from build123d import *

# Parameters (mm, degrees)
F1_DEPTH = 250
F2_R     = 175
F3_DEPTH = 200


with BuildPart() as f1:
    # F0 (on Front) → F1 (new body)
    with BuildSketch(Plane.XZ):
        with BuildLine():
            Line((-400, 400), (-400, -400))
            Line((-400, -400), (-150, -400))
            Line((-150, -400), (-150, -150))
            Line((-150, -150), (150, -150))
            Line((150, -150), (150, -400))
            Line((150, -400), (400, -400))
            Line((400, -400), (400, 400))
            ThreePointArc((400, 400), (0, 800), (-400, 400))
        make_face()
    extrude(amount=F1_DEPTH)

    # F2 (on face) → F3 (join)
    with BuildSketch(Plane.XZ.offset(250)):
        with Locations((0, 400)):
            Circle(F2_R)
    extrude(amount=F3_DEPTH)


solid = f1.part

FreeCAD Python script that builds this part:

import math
import FreeCAD as App
import Part
import Sketcher
from FreeCAD import Vector

doc = App.newDocument("Part")
params = doc.addObject("Spreadsheet::Sheet", "Params")
for row, (alias, value) in enumerate([
    ("sketch1_radius", "400 mm"),
    ("sketch1_width", "250 mm"),
    ("sketch1_height", "800 mm"),
    ("pad1_length", "250 mm"),
    ("sketch2_diameter", "350 mm"),
    ("pad2_length", "200 mm"),
], start=1):
    params.set(f"A{row}", alias)
    params.set(f"B{row}", "=" + value)
    params.setAlias(f"B{row}", alias)

body = doc.addObject("PartDesign::Body", "Body")

sketch1 = body.newObject("Sketcher::SketchObject", "Sketch")
sketch1.AttachmentSupport = (doc.getObject("XZ_Plane"), [""])
sketch1.MapMode = "FlatFace"
sketch1.addGeometry(Part.LineSegment(Vector(-400, 400, 0), Vector(-400, -400, 0)), False)
sketch1.addGeometry(Part.LineSegment(Vector(-400, -400, 0), Vector(-150, -400, 0)), False)
sketch1.addGeometry(Part.LineSegment(Vector(-150, -400, 0), Vector(-150, -150, 0)), False)
sketch1.addGeometry(Part.LineSegment(Vector(-150, -150, 0), Vector(150, -150, 0)), False)
sketch1.addGeometry(Part.LineSegment(Vector(150, -150, 0), Vector(150, -400, 0)), False)
sketch1.addGeometry(Part.LineSegment(Vector(150, -400, 0), Vector(400, -400, 0)), False)
sketch1.addGeometry(Part.LineSegment(Vector(400, -400, 0), Vector(400, 400, 0)), False)
sketch1.addGeometry(Part.ArcOfCircle(Part.Circle(Vector(0, 400, 0), Vector(0, 0, 1), 400), math.radians(0), math.radians(180)), False)
sketch1.addConstraint(Sketcher.Constraint("Coincident", 0, 2, 1, 1))
sketch1.addConstraint(Sketcher.Constraint("Coincident", 1, 2, 2, 1))
sketch1.addConstraint(Sketcher.Constraint("Coincident", 2, 2, 3, 1))
sketch1.addConstraint(Sketcher.Constraint("Coincident", 3, 2, 4, 1))
sketch1.addConstraint(Sketcher.Constraint("Coincident", 4, 2, 5, 1))
sketch1.addConstraint(Sketcher.Constraint("Coincident", 5, 2, 6, 1))
sketch1.addConstraint(Sketcher.Constraint("Tangent", 6, 2, 7, 1))
sketch1.addConstraint(Sketcher.Constraint("Tangent", 7, 2, 0, 1))
sketch1.addConstraint(Sketcher.Constraint("Vertical", 0))
sketch1.addConstraint(Sketcher.Constraint("Horizontal", 1))
sketch1.addConstraint(Sketcher.Constraint("Vertical", 2))
sketch1.addConstraint(Sketcher.Constraint("Horizontal", 3))
sketch1.addConstraint(Sketcher.Constraint("Vertical", 4))
sketch1.addConstraint(Sketcher.Constraint("Horizontal", 5))
sketch1.addConstraint(Sketcher.Constraint("Vertical", 6))
sketch1.addConstraint(Sketcher.Constraint("Symmetric", 0, 2, 6, 2, -1, 1))
sketch1.addConstraint(Sketcher.Constraint("Symmetric", 1, 2, 4, 2, -2))
sketch1.addConstraint(Sketcher.Constraint("Equal", 5, 2))
sketch1.addConstraint(Sketcher.Constraint("Radius", 7, 400.0))
sketch1.addConstraint(Sketcher.Constraint("DistanceX", 1, 1, 1, 2, 250.0))
sketch1.addConstraint(Sketcher.Constraint("DistanceY", 0, 2, 0, 1, 800.0))
sketch1.setExpression("Constraints[18]", "Params.sketch1_radius")
sketch1.setExpression("Constraints[19]", "Params.sketch1_width")
sketch1.setExpression("Constraints[20]", "Params.sketch1_height")
pad1 = body.newObject("PartDesign::Pad", "Pad")
pad1.Profile = sketch1
pad1.setExpression("Length", "Params.pad1_length")

sketch2 = body.newObject("Sketcher::SketchObject", "Sketch001")
sketch2.AttachmentSupport = (doc.getObject("XZ_Plane"), [""])
sketch2.MapMode = "FlatFace"
sketch2.AttachmentOffset = App.Placement(Vector(0, 0, 250), App.Rotation())
sketch2.addGeometry(Part.Circle(Vector(0, 400, 0), Vector(0, 0, 1), 175), False)
sketch2.addConstraint(Sketcher.Constraint("PointOnObject", 0, 3, -2))
sketch2.addConstraint(Sketcher.Constraint("Diameter", 0, 350.0))
sketch2.addConstraint(Sketcher.Constraint("DistanceY", -1, 1, 0, 3, 400.0))
sketch2.setExpression("Constraints[1]", "Params.sketch2_diameter")
pad2 = body.newObject("PartDesign::Pad", "Pad001")
pad2.Profile = sketch2
pad2.setExpression("Length", "Params.pad2_length")

doc.recompute()
